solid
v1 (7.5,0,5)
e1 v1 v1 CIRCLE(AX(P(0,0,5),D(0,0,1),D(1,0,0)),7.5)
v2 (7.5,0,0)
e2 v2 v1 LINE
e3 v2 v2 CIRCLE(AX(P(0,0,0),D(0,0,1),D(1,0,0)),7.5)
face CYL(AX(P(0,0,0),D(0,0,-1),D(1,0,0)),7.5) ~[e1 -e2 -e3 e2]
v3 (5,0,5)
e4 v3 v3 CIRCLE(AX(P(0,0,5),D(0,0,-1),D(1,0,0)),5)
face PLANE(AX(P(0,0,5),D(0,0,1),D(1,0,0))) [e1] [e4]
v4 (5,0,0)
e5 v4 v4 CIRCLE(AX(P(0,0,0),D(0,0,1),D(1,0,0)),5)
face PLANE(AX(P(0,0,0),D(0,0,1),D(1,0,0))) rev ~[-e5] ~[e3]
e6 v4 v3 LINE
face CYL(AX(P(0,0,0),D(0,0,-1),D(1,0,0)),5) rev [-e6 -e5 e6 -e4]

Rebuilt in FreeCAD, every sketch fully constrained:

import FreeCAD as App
import Part
import Sketcher
Q = App.Units.Quantity

doc = App.newDocument("Part")
body = doc.addObject("PartDesign::Body", "Body")

sketch1 = doc.addObject("Sketcher::SketchObject", "Sketch")
body.addObject(sketch1)
sketch1.AttachmentSupport = (doc.XY_Plane, [""])
sketch1.MapMode = "FlatFace"
sketch1.addGeometry(Part.Circle(App.Vector(0, 0, 0), App.Vector(0, 0, 1), 5), False)
sketch1.addConstraint([
    Sketcher.Constraint("Coincident", 0, 3, -1, 1),
    Sketcher.Constraint("Diameter", 0, Q("10 mm")),
])
pad1 = doc.addObject("PartDesign::Pad", "Pad")
body.addObject(pad1)
pad1.Profile = sketch1
pad1.Length = 10
body2 = doc.addObject("PartDesign::Body", "Body001")

sketch2 = doc.addObject("Sketcher::SketchObject", "Sketch001")
body2.addObject(sketch2)
sketch2.AttachmentSupport = (doc.getObject("XY_Plane001"), [""])
sketch2.MapMode = "FlatFace"
sketch2.addGeometry(Part.Circle(App.Vector(0, 0, 0), App.Vector(0, 0, 1), 8), False)
sketch2.addConstraint([
    Sketcher.Constraint("Coincident", 0, 3, -1, 1),
    Sketcher.Constraint("Diameter", 0, Q("15 mm")),
])
pad2 = doc.addObject("PartDesign::Pad", "Pad001")
body2.addObject(pad2)
pad2.Profile = sketch2
pad2.Length = 5
doc.recompute()

boolean = doc.addObject("PartDesign::Boolean", "Boolean")
body2.addObject(boolean)
boolean.Type = "Cut"
boolean.addObjects([body])

doc.recompute()
